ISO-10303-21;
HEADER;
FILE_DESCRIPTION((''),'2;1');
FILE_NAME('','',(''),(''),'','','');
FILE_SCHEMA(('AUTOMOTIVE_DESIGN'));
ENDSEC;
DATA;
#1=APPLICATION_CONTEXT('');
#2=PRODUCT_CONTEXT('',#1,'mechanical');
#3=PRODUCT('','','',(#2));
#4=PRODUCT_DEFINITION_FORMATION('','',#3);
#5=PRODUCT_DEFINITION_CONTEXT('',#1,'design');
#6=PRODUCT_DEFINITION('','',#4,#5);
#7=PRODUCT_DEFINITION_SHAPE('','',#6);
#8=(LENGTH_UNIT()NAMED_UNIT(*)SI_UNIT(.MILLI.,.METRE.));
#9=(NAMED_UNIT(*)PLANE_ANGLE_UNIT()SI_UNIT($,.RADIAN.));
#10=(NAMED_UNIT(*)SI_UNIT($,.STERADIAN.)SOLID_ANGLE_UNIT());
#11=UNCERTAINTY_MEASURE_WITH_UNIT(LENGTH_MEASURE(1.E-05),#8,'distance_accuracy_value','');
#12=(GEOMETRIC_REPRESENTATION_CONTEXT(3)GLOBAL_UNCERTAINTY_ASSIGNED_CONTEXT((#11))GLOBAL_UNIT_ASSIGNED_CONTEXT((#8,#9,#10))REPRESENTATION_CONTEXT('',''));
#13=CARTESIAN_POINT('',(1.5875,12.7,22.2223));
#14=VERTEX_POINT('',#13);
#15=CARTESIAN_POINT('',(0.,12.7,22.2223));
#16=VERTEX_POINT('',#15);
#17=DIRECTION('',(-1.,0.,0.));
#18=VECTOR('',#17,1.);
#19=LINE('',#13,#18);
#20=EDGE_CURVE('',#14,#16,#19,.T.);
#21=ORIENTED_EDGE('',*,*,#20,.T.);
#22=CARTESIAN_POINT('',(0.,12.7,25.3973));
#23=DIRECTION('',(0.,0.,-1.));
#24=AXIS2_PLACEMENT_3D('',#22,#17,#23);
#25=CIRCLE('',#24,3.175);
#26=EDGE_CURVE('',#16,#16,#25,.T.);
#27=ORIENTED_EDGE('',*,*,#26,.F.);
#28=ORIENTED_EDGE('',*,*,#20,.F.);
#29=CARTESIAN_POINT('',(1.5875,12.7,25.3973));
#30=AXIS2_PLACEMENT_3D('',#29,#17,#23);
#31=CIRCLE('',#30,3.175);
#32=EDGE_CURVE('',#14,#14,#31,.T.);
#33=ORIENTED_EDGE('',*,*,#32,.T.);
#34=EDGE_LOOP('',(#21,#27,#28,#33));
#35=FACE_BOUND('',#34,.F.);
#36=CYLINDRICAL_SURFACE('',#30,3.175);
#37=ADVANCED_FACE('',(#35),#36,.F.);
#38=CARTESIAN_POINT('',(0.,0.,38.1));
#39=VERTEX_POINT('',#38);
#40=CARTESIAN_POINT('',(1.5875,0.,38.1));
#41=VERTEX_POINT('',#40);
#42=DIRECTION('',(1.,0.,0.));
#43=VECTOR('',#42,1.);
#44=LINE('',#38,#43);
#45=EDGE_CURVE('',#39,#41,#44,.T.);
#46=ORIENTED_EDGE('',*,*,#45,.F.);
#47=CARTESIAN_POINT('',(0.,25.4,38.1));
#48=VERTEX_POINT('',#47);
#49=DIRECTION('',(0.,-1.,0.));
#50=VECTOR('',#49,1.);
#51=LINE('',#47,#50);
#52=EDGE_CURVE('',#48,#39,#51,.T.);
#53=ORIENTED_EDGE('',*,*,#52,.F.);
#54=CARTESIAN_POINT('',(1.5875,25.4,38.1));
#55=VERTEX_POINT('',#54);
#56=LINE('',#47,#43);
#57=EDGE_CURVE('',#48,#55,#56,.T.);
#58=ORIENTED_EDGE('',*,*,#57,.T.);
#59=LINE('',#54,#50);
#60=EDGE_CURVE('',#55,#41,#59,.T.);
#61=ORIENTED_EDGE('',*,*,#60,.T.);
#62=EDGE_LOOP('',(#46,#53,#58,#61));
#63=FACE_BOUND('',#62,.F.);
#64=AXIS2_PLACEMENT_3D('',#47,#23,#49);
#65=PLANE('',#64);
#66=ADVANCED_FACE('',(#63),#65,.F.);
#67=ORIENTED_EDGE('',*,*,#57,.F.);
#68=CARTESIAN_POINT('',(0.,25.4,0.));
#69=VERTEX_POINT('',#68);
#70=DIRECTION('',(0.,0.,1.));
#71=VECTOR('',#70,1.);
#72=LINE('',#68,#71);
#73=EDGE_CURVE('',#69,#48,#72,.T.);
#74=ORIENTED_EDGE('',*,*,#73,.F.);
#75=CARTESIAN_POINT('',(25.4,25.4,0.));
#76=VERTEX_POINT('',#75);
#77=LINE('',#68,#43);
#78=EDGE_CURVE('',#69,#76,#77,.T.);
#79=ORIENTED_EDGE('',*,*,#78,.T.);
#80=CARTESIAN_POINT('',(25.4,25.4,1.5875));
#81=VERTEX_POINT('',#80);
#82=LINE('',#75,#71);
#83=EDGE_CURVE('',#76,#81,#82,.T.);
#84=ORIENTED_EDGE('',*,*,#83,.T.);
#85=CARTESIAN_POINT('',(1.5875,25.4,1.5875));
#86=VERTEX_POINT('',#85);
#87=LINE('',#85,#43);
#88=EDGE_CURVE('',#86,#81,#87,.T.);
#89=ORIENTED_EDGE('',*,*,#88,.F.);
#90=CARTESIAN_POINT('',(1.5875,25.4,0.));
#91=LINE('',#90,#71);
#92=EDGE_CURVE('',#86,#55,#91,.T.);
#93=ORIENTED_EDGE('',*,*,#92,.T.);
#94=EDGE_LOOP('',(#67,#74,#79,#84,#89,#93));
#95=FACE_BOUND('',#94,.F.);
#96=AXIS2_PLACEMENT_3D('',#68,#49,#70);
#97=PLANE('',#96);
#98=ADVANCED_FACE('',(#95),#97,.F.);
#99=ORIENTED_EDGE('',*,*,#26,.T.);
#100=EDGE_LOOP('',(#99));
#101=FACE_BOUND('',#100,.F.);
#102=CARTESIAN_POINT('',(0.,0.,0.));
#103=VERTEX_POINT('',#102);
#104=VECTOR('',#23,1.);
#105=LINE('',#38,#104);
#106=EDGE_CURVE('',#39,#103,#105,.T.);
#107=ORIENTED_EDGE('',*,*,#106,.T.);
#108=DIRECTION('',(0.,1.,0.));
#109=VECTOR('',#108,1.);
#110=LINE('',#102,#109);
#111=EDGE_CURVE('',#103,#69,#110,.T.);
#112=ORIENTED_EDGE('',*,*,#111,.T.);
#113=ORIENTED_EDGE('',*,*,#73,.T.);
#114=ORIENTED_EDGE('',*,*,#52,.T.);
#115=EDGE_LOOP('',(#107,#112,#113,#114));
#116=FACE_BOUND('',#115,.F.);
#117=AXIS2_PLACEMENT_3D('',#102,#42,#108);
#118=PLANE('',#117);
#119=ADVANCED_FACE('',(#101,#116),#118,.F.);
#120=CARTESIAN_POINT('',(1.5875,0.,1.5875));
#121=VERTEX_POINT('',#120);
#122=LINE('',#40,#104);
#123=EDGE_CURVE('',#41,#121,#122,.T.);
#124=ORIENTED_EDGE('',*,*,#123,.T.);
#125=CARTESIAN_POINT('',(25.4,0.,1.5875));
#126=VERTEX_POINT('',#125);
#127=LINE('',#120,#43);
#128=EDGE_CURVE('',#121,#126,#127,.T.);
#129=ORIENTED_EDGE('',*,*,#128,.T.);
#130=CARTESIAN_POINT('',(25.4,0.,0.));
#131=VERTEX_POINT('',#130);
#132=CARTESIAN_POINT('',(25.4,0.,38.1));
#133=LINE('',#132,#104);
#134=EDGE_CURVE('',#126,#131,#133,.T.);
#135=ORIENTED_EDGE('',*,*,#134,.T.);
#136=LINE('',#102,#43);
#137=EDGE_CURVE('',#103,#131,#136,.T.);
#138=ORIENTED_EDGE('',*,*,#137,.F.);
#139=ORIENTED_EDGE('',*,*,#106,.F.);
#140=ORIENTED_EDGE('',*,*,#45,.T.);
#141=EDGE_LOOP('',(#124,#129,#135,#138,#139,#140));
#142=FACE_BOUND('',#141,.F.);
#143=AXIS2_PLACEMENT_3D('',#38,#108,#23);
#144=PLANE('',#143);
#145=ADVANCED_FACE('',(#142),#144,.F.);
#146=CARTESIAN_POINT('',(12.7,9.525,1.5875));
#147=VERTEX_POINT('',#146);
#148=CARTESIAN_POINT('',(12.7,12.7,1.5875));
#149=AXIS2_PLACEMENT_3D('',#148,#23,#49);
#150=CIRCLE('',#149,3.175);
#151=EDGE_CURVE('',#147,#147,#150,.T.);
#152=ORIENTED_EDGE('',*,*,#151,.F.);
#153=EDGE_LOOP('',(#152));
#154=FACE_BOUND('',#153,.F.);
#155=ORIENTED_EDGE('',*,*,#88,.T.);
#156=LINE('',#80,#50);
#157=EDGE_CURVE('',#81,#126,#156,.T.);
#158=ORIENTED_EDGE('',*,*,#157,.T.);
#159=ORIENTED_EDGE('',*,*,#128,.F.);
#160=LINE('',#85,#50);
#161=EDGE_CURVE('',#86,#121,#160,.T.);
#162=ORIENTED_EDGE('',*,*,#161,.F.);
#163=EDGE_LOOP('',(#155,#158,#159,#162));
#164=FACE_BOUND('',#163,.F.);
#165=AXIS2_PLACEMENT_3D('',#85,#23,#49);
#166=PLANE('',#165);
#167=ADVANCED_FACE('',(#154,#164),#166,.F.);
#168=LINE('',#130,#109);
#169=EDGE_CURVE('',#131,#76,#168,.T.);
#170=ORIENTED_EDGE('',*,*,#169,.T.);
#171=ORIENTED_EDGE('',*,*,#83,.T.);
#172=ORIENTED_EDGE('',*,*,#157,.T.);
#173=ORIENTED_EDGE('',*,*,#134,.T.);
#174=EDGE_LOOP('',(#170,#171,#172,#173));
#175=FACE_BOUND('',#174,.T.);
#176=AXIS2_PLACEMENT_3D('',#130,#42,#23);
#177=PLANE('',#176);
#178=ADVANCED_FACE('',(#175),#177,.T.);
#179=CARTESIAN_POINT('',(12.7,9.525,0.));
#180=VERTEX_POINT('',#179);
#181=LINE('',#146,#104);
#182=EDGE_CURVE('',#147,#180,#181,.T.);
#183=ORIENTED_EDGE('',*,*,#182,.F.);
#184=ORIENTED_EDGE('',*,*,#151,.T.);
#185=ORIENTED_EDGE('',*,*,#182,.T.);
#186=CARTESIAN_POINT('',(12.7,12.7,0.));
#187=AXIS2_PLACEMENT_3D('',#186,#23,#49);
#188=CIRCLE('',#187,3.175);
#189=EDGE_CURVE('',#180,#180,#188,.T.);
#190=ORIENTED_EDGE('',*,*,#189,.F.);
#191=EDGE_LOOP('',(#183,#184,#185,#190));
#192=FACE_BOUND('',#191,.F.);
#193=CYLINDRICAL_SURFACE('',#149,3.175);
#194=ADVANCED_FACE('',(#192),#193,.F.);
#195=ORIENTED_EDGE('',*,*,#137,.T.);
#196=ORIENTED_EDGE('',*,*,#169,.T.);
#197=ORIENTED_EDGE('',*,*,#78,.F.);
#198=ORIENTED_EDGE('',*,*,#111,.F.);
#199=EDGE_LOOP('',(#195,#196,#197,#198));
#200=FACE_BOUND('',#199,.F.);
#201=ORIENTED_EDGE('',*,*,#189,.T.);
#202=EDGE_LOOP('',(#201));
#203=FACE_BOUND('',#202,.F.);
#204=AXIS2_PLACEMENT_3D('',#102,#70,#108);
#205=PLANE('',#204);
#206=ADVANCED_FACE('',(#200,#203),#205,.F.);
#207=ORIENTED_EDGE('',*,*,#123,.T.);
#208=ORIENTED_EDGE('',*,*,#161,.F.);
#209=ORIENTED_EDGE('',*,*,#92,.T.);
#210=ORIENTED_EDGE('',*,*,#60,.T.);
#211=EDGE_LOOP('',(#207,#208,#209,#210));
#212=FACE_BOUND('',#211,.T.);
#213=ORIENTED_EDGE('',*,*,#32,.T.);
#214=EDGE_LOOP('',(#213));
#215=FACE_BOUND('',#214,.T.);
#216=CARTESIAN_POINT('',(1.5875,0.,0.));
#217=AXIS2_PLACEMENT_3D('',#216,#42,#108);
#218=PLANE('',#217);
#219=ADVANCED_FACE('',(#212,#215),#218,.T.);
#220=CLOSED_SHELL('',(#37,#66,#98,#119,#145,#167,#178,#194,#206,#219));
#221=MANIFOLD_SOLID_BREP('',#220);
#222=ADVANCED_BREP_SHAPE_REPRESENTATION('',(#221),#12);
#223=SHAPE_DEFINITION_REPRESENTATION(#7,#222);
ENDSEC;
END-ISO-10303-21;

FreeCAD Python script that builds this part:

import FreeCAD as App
import Part
import Sketcher
Q = App.Units.Quantity


def add_polygon(sketch, points):
    """Adds a closed chain of lines whose ends are joined by coincident constraints."""
    first, n = sketch.GeometryCount, len(points)
    for a, b in zip(points, points[1:] + points[:1]):
        sketch.addGeometry(Part.LineSegment(App.Vector(*a, 0), App.Vector(*b, 0)), False)
    for i in range(n):
        sketch.addConstraint(Sketcher.Constraint("Coincident", first + i, 2, first + (i + 1) % n, 1))

doc = App.newDocument("Part")
params = doc.addObject("Spreadsheet::Sheet", "Params")
for row, (alias, value) in enumerate([
    ("sketch1_width", "1 in"),
    ("sketch1_height", "1.5 in"),
    ("pad1_length", "0.0625 in"),
    ("sketch2_width", "1 in"),
    ("sketch2_height", "0.0625 in"),
    ("pad2_length", "0.9375 in"),
    ("sketch3_diameter", "0.25 in"),
    ("hole_diameter", "0.25 in"),
    ("sketch4_diameter", "0.25 in"),
    ("hole2_diameter", "0.25 in"),
], start=1):
    params.set(f"A{row}", alias)
    params.set(f"B{row}", "=" + value)
    params.setAlias(f"B{row}", alias)

body = doc.addObject("PartDesign::Body", "Body")

sketch1 = body.newObject("Sketcher::SketchObject", "Sketch")
sketch1.AttachmentSupport = (doc.getObject("YZ_Plane"), [""])
sketch1.MapMode = "FlatFace"
add_polygon(sketch1, [(0, 38), (0, 0), (25, 0), (25, 38)])
sketch1.addConstraint([
    Sketcher.Constraint("Vertical", 0),
    Sketcher.Constraint("Horizontal", 1),
    Sketcher.Constraint("Vertical", 2),
    Sketcher.Constraint("Horizontal", 3),
    Sketcher.Constraint("Coincident", 0, 2, -1, 1),
    Sketcher.Constraint("DistanceX", 1, 1, 1, 2, Q("1 in")),
    Sketcher.Constraint("DistanceY", 0, 2, 0, 1, Q("1.5 in")),
])
sketch1.setExpression("Constraints[9]", "Params.sketch1_width")
sketch1.setExpression("Constraints[10]", "Params.sketch1_height")
pad1 = body.newObject("PartDesign::Pad", "Pad")
pad1.Profile = sketch1
pad1.setExpression("Length", "Params.pad1_length")

sketch2 = body.newObject("Sketcher::SketchObject", "Sketch001")
sketch2.AttachmentSupport = (doc.getObject("YZ_Plane"), [""])
sketch2.MapMode = "FlatFace"
sketch2.AttachmentOffset = App.Placement(App.Vector(0, 0, 0.0625 * 25.4), App.Rotation())
add_polygon(sketch2, [(25.4, 1.6), (0, 1.6), (0, 0), (25.4, 0)])
sketch2.addConstraint([
    Sketcher.Constraint("Horizontal", 0),
    Sketcher.Constraint("Vertical", 1),
    Sketcher.Constraint("Horizontal", 2),
    Sketcher.Constraint("Vertical", 3),
    Sketcher.Constraint("Coincident", 1, 2, -1, 1),
    Sketcher.Constraint("DistanceX", 0, 2, 0, 1, Q("1 in")),
    Sketcher.Constraint("DistanceY", 1, 2, 1, 1, Q("0.0625 in")),
])
sketch2.setExpression("Constraints[9]", "Params.sketch2_width")
sketch2.setExpression("Constraints[10]", "Params.sketch2_height")
pad2 = body.newObject("PartDesign::Pad", "Pad001")
pad2.Profile = sketch2
pad2.setExpression("Length", "Params.pad2_length")

sketch3 = body.newObject("Sketcher::SketchObject", "Sketch002")
sketch3.AttachmentSupport = (doc.getObject("YZ_Plane"), [""])
sketch3.MapMode = "FlatFace"
sketch3.AttachmentOffset = App.Placement(App.Vector(0, 0, 0.0625 * 25.4), App.Rotation())
sketch3.addGeometry(Part.Circle(App.Vector(12.7, 25.4, 0), App.Vector(0, 0, 1), 3.2), False)
sketch3.addConstraint([
    Sketcher.Constraint("Diameter", 0, Q("0.25 in")),
    Sketcher.Constraint("DistanceX", -1, 1, 0, 3, Q("0.5 in")),
    Sketcher.Constraint("DistanceY", -1, 1, 0, 3, Q("0.9999 in")),
])
sketch3.setExpression("Constraints[0]", "Params.sketch3_diameter")
doc.recompute()
hole = body.newObject("PartDesign::Hole", "Hole")
hole.Profile = sketch3
hole.ThreadType = "None"
hole.setExpression("Diameter", "Params.hole_diameter")
hole.DepthType = "ThroughAll"

sketch4 = body.newObject("Sketcher::SketchObject", "Sketch003")
sketch4.AttachmentSupport = (doc.getObject("XY_Plane"), [""])
sketch4.MapMode = "FlatFace"
sketch4.AttachmentOffset = App.Placement(App.Vector(0, 0, 0.0625 * 25.4), App.Rotation())
sketch4.addGeometry(Part.Circle(App.Vector(12.7, 12.7, 0), App.Vector(0, 0, 1), 3.2), False)
sketch4.addConstraint([
    Sketcher.Constraint("Diameter", 0, Q("0.25 in")),
    Sketcher.Constraint("DistanceX", -1, 1, 0, 3, Q("0.5 in")),
    Sketcher.Constraint("DistanceY", -1, 1, 0, 3, Q("0.5 in")),
])
sketch4.setExpression("Constraints[0]", "Params.sketch4_diameter")
doc.recompute()
hole2 = body.newObject("PartDesign::Hole", "Hole001")
hole2.Profile = sketch4
hole2.ThreadType = "None"
hole2.setExpression("Diameter", "Params.hole2_diameter")
hole2.DepthType = "ThroughAll"

doc.recompute()
